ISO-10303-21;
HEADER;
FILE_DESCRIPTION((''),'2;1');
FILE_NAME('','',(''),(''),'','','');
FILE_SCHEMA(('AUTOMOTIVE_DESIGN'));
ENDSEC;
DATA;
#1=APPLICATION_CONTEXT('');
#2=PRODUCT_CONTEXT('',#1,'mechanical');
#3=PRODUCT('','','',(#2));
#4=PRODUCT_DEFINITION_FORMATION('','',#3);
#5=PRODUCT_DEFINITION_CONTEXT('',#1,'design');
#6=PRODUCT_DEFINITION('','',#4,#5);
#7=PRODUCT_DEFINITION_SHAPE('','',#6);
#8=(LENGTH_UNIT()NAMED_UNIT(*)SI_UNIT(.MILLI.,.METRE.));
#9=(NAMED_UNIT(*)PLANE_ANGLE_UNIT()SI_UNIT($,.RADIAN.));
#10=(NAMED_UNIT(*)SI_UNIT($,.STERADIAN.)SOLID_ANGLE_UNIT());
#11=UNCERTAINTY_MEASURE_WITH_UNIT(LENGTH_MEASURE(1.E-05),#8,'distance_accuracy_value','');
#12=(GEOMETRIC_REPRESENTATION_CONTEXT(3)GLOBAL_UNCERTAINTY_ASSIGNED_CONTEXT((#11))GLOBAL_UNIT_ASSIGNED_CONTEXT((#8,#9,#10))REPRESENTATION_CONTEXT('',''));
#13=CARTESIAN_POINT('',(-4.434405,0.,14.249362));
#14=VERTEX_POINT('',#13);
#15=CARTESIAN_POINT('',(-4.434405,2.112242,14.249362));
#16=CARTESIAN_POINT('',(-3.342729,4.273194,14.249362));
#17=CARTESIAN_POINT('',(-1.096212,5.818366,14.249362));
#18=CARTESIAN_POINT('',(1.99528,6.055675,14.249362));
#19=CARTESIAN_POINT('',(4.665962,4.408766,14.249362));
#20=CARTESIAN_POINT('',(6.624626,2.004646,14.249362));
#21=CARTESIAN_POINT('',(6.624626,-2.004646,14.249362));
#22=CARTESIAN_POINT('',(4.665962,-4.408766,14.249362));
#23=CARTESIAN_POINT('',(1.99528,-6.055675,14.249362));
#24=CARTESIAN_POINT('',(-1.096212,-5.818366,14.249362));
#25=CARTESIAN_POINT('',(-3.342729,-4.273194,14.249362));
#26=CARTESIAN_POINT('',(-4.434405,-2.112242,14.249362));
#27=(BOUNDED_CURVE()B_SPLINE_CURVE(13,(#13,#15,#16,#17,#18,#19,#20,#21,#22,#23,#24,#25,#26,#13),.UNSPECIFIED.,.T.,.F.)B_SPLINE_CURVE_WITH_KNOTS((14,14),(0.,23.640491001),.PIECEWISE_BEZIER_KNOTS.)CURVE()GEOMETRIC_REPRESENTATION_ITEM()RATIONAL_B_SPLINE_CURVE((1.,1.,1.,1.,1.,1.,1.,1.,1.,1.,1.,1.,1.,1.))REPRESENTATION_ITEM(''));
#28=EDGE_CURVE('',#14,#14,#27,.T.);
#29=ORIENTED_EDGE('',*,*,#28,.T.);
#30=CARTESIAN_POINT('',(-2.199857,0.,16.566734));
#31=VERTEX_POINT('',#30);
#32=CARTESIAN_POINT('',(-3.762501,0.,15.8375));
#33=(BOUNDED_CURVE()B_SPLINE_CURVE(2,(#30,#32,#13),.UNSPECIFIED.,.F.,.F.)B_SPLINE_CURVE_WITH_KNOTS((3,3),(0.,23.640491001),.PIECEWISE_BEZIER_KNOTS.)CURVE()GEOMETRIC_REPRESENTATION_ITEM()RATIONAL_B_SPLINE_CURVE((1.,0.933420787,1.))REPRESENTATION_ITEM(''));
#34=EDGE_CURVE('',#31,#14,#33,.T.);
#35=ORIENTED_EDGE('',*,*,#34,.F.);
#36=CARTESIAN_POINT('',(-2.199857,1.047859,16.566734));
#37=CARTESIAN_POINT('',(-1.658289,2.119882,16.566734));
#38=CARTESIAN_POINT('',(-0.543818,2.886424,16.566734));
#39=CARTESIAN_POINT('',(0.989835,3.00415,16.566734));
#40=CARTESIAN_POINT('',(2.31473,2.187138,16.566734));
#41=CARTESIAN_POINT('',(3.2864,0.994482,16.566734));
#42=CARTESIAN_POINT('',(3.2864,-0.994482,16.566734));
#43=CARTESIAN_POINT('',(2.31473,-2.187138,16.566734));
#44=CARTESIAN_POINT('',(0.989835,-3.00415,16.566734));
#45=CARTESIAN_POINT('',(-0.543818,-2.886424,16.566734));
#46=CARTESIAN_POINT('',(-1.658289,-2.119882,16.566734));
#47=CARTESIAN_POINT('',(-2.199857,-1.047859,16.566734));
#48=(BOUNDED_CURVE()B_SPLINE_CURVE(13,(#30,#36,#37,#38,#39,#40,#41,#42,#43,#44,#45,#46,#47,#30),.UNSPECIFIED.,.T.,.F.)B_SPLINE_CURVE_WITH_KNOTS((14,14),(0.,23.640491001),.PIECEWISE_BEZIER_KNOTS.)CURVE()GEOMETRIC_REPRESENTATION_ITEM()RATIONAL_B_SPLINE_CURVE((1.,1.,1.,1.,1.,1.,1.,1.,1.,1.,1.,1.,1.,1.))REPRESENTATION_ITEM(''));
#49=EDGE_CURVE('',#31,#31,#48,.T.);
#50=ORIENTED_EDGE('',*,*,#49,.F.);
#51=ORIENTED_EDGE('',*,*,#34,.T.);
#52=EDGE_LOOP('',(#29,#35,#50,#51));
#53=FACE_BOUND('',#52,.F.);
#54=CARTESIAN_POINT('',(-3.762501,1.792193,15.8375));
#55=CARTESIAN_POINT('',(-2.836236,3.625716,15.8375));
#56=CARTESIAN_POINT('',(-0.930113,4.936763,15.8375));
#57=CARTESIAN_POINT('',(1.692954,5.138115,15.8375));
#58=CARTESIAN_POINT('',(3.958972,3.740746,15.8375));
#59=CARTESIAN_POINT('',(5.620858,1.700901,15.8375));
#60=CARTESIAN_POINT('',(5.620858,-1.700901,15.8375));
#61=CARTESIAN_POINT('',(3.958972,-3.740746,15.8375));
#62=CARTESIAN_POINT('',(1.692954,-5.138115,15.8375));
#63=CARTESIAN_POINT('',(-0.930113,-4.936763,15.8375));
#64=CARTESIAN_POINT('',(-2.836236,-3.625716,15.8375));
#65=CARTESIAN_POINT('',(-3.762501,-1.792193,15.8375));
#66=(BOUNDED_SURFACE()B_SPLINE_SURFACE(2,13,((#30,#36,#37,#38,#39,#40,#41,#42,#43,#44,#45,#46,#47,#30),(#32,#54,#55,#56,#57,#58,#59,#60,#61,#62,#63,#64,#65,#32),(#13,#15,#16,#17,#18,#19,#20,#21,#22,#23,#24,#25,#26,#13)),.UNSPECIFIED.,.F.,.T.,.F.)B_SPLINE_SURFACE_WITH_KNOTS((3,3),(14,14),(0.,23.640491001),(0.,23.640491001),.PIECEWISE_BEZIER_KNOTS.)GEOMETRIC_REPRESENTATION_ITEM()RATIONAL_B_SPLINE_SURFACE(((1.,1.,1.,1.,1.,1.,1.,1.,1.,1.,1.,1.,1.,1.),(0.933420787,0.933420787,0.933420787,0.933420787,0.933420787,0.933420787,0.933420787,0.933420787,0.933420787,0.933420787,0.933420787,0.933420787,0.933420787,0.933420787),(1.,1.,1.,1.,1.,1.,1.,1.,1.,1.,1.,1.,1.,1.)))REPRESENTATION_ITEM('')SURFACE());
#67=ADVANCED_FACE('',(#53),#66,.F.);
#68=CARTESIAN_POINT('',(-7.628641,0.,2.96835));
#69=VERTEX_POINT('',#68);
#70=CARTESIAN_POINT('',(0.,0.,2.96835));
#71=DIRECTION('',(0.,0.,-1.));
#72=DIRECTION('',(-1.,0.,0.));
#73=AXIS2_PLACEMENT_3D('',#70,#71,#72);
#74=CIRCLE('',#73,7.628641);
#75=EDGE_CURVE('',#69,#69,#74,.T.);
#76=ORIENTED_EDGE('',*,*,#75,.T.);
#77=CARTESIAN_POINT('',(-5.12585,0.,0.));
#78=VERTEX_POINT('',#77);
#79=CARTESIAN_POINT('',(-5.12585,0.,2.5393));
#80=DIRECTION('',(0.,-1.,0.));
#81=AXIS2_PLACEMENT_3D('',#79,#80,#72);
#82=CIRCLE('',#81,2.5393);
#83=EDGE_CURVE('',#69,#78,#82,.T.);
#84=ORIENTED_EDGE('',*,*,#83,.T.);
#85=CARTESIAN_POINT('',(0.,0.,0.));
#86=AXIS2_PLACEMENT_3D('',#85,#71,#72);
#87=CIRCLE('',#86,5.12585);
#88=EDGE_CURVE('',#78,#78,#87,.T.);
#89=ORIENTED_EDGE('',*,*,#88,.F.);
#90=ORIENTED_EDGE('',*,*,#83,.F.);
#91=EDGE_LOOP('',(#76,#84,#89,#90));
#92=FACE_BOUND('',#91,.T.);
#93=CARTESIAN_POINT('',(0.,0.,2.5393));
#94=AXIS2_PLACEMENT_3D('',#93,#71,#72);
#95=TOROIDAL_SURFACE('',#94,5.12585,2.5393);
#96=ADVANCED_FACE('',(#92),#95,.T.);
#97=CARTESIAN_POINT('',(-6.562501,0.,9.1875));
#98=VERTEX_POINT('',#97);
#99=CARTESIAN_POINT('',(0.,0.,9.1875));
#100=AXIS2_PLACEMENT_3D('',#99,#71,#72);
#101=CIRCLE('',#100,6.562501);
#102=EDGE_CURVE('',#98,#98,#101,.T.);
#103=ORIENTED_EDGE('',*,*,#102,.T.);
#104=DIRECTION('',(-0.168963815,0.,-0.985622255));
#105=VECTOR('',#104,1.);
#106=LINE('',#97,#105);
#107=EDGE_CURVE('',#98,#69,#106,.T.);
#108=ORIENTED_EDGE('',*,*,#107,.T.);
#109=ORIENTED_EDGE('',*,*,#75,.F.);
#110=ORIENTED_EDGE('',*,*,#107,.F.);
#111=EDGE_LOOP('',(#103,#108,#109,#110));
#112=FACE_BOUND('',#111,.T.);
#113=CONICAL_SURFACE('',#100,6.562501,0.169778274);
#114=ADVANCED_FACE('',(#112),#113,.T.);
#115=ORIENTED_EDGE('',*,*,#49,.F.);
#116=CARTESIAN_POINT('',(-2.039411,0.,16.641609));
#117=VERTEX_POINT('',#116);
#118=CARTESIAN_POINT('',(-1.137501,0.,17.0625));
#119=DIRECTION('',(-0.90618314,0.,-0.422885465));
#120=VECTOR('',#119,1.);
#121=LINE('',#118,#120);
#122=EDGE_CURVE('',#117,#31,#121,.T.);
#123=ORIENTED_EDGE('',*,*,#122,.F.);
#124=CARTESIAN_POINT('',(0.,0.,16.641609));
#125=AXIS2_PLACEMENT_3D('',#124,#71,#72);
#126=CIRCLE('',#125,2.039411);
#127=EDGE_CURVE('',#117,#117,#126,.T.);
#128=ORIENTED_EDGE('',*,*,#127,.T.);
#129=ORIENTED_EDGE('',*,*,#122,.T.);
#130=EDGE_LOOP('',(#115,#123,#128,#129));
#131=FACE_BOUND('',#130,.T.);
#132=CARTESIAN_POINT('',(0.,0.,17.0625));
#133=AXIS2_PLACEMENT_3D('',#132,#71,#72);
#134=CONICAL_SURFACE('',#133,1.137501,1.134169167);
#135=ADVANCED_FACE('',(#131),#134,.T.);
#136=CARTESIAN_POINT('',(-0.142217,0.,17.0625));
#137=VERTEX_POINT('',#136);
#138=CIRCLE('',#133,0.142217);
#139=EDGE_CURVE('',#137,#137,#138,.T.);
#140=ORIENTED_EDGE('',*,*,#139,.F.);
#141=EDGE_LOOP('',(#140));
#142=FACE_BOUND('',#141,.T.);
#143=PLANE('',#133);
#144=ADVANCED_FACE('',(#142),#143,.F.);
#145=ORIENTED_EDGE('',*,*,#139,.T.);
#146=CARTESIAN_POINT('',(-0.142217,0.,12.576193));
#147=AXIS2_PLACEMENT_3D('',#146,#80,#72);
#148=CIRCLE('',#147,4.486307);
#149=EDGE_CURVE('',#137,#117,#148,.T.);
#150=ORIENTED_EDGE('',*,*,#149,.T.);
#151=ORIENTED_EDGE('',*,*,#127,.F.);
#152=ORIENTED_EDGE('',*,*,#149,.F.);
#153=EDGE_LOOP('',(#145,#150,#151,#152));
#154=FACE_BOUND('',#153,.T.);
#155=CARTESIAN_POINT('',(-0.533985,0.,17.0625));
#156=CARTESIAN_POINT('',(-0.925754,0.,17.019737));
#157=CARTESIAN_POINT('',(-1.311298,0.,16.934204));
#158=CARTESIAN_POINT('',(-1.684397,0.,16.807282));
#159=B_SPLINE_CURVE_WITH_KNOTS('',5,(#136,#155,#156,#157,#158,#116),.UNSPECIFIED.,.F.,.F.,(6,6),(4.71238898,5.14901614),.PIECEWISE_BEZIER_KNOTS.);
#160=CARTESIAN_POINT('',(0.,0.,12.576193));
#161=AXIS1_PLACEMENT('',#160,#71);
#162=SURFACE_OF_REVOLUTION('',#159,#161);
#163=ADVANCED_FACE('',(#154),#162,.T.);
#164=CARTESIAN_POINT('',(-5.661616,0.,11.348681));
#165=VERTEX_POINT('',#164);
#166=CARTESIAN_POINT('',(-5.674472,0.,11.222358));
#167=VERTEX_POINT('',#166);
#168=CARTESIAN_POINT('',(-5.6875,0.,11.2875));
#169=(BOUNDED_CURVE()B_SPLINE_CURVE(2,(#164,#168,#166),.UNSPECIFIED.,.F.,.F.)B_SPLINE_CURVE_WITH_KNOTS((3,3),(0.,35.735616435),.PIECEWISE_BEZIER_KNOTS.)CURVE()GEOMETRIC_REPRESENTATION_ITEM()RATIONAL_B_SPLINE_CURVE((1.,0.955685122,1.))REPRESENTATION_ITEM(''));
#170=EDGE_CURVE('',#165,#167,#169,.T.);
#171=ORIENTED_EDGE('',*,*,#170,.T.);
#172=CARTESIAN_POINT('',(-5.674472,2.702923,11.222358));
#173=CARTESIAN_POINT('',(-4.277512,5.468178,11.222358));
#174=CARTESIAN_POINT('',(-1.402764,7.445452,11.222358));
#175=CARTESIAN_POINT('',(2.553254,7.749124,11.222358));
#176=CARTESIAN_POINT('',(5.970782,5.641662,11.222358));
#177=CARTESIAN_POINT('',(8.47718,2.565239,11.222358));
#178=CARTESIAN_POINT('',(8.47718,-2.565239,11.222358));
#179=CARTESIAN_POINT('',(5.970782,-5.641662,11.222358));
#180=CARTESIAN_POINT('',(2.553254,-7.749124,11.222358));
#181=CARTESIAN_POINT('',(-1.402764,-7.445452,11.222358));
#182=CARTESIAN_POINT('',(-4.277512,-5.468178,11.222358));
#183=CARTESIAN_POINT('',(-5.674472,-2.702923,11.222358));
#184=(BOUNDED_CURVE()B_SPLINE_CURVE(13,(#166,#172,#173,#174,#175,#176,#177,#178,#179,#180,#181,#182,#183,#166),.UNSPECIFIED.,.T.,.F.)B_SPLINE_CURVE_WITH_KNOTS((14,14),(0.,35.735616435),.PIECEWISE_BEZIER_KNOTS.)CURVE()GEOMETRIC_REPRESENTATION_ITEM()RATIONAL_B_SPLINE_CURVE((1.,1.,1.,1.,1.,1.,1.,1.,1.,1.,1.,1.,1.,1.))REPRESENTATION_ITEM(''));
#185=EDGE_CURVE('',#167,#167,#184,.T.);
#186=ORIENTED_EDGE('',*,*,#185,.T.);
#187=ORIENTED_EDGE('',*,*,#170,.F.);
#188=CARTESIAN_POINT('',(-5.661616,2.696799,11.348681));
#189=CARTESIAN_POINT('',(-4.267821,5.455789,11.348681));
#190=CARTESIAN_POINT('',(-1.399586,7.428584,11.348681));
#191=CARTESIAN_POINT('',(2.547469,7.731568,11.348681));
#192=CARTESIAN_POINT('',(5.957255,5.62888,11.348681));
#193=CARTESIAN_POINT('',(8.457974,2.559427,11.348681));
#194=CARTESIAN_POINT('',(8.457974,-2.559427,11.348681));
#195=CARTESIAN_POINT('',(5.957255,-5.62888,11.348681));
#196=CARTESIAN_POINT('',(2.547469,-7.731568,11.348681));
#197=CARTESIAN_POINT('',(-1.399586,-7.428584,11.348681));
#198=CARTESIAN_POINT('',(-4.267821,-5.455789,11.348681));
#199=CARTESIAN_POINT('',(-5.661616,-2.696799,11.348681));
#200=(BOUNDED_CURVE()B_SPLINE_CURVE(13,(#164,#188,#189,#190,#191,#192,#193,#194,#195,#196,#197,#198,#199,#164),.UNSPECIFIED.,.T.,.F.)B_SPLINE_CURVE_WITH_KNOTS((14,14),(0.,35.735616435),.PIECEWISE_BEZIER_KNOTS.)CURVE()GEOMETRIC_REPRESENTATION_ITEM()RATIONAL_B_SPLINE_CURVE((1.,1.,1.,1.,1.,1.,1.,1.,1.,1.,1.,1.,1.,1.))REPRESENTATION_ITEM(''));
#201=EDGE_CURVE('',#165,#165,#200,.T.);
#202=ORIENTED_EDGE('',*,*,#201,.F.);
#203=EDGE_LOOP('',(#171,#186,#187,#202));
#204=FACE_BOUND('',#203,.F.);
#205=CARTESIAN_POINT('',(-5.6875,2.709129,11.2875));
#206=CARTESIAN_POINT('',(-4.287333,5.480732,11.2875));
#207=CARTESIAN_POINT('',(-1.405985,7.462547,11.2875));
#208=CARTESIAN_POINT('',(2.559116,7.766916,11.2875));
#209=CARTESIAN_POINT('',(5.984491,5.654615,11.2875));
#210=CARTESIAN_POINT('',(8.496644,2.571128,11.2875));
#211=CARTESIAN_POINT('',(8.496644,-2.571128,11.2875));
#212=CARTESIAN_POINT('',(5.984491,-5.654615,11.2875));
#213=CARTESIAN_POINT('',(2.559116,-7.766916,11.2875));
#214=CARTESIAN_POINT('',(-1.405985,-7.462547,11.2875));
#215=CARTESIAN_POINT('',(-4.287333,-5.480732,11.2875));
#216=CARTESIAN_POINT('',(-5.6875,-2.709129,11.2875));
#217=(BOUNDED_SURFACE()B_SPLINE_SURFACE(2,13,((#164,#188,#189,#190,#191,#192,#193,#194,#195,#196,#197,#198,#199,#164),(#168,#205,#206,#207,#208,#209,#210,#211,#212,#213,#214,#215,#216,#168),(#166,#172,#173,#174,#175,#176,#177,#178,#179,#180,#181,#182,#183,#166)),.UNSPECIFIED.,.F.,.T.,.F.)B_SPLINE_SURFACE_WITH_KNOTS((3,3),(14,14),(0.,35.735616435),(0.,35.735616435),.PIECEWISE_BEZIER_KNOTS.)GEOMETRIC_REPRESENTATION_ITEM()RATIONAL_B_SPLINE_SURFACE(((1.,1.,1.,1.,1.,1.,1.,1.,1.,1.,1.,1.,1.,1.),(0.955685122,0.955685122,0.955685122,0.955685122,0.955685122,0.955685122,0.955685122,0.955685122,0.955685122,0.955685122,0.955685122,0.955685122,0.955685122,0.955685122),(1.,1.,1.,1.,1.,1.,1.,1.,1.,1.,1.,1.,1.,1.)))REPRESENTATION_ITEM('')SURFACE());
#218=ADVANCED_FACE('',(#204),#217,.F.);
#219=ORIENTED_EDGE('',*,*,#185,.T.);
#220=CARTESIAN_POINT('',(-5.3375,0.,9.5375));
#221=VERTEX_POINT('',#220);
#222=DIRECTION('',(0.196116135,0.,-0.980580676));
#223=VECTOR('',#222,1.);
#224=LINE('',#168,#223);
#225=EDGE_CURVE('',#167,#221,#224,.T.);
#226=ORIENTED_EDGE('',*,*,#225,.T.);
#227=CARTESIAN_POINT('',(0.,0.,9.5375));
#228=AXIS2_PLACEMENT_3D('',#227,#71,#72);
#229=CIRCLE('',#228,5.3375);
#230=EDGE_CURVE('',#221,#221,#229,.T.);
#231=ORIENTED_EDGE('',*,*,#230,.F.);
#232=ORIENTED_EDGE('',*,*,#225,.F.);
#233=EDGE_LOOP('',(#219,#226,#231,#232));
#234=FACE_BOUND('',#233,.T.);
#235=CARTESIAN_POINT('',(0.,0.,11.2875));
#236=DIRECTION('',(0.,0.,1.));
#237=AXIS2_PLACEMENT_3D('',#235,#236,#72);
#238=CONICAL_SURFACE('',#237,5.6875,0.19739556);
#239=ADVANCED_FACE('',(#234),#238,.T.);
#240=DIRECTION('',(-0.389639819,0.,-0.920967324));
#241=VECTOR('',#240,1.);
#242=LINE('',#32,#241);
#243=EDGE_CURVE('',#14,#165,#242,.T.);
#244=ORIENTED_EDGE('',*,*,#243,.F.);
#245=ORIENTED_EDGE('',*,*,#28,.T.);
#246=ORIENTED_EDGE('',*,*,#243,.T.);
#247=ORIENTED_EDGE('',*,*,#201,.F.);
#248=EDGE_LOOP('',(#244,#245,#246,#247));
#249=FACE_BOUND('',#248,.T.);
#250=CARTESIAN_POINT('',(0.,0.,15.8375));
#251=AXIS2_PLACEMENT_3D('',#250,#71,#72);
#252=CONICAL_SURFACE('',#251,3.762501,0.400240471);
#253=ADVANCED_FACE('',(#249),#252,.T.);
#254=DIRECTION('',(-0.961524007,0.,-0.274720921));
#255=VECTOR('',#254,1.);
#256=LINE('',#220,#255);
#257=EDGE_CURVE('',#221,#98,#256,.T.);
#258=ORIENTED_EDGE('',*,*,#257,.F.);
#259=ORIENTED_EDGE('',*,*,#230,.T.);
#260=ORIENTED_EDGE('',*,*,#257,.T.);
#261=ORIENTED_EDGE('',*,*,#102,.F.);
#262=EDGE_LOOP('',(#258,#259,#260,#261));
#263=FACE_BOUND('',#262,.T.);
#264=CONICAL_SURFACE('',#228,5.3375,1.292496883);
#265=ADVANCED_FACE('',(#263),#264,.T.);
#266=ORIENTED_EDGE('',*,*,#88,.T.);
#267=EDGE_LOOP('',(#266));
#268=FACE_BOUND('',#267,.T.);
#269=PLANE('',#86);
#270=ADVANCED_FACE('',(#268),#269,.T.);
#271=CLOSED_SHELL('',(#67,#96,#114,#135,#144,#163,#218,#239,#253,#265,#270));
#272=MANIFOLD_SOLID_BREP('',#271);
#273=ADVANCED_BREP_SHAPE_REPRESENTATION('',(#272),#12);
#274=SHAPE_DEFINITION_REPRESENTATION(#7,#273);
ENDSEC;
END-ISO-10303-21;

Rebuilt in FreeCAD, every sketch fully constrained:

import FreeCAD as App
import Part
import Sketcher
Q = App.Units.Quantity


def edges_at(feature, points):
    """Names of the edges that pass closest to the given points."""
    edges = feature.Shape.Edges
    near = lambda p: min(range(len(edges)), key=lambda i: edges[i].distToShape(Part.Vertex(*p))[0])
    return sorted({f"Edge{near(p) + 1}" for p in points})


def add_polygon(sketch, points):
    """Adds a closed chain of lines whose ends are joined by coincident constraints."""
    first, n = sketch.GeometryCount, len(points)
    for a, b in zip(points, points[1:] + points[:1]):
        sketch.addGeometry(Part.LineSegment(App.Vector(*a, 0), App.Vector(*b, 0)), False)
    for i in range(n):
        sketch.addConstraint(Sketcher.Constraint("Coincident", first + i, 2, first + (i + 1) % n, 1))

doc = App.newDocument("Part")
params = doc.addObject("Spreadsheet::Sheet", "Params")
for row, (alias, value) in enumerate([
    ("revolution_angle", "360 deg"),
    ("fillet_radius", "4.486307 mm"),
    ("fillet2_radius", "0.215658 mm"),
    ("fillet3_radius", "2.5393 mm"),
], start=1):
    params.set(f"A{row}", alias)
    params.set(f"B{row}", "=" + value)
    params.setAlias(f"B{row}", alias)

body = doc.addObject("PartDesign::Body", "Body")

# Sketch on XZ plane
sketch1 = body.newObject("Sketcher::SketchObject", "Sketch")
sketch1.AttachmentSupport = (doc.getObject("XZ_Plane"), [""])
sketch1.MapMode = "FlatFace"
add_polygon(sketch1, [(-8.137501, 0), (0, 0), (0, 17.0625), (-1.137501, 17.0625), (-3.762501, 15.8375), (-5.6875, 11.2875), (-5.3375, 9.5375), (-6.562501, 9.1875)])  # lines 0-7
sketch1.addConstraint([
    Sketcher.Constraint("Horizontal", 0),
    Sketcher.Constraint("Vertical", 1),
    Sketcher.Constraint("Horizontal", 2),
    Sketcher.Constraint("Coincident", 0, 2, -1, 1),
    Sketcher.Constraint("DistanceY", 5, 2, 3, 2, Q("6.3 mm")),
    Sketcher.Constraint("DistanceX", 5, 2, 2, 2, Q("4.199999 mm")),
    Sketcher.Constraint("DistanceY", 6, 2, 4, 2, Q("2.1 mm")),
    Sketcher.Constraint("DistanceX", 6, 2, 3, 2, Q("2.8 mm")),
    Sketcher.Constraint("DistanceX", 7, 2, 5, 2, Q("2.800001 mm")),
    Sketcher.Constraint("DistanceY", 4, 2, 3, 2, Q("4.55 mm")),
    Sketcher.Constraint("DistanceX", 4, 2, 2, 2, Q("4.549999 mm")),
    Sketcher.Constraint("DistanceX", 0, 1, 0, 2, Q("8.137501 mm")),
    Sketcher.Constraint("DistanceY", 1, 1, 1, 2, Q("17.0625 mm")),
    Sketcher.Constraint("DistanceX", 3, 2, 2, 2, Q("2.625 mm")),
    Sketcher.Constraint("DistanceY", 3, 2, 2, 2, Q("1.225 mm")),
])
revolution = body.newObject("PartDesign::Revolution", "Revolution")
revolution.Profile = sketch1
revolution.ReferenceAxis = (sketch1, ["V_Axis"])
revolution.setExpression("Angle", "Params.revolution_angle")
doc.recompute()

fillet = body.newObject("PartDesign::Fillet", "Fillet")
fillet.Base = (revolution, edges_at(revolution, [(1.138, 0, 17.062), (3.763, 0, 15.838), (-2.45, 0, 16.45)]))
fillet.setExpression("Radius", "Params.fillet_radius")
doc.recompute()

fillet2 = body.newObject("PartDesign::Fillet", "Fillet001")
fillet2.Base = (fillet, edges_at(fillet, [(-5.061, 0, 12.768), (4.434, 0, 14.249), (5.688, 0, 11.287)]))
fillet2.setExpression("Radius", "Params.fillet2_radius")
doc.recompute()

fillet3 = body.newObject("PartDesign::Fillet", "Fillet002")
fillet3.Base = (fillet2, edges_at(fillet2, [(8.138, 0, 0)]))
fillet3.setExpression("Radius", "Params.fillet3_radius")

doc.recompute()
